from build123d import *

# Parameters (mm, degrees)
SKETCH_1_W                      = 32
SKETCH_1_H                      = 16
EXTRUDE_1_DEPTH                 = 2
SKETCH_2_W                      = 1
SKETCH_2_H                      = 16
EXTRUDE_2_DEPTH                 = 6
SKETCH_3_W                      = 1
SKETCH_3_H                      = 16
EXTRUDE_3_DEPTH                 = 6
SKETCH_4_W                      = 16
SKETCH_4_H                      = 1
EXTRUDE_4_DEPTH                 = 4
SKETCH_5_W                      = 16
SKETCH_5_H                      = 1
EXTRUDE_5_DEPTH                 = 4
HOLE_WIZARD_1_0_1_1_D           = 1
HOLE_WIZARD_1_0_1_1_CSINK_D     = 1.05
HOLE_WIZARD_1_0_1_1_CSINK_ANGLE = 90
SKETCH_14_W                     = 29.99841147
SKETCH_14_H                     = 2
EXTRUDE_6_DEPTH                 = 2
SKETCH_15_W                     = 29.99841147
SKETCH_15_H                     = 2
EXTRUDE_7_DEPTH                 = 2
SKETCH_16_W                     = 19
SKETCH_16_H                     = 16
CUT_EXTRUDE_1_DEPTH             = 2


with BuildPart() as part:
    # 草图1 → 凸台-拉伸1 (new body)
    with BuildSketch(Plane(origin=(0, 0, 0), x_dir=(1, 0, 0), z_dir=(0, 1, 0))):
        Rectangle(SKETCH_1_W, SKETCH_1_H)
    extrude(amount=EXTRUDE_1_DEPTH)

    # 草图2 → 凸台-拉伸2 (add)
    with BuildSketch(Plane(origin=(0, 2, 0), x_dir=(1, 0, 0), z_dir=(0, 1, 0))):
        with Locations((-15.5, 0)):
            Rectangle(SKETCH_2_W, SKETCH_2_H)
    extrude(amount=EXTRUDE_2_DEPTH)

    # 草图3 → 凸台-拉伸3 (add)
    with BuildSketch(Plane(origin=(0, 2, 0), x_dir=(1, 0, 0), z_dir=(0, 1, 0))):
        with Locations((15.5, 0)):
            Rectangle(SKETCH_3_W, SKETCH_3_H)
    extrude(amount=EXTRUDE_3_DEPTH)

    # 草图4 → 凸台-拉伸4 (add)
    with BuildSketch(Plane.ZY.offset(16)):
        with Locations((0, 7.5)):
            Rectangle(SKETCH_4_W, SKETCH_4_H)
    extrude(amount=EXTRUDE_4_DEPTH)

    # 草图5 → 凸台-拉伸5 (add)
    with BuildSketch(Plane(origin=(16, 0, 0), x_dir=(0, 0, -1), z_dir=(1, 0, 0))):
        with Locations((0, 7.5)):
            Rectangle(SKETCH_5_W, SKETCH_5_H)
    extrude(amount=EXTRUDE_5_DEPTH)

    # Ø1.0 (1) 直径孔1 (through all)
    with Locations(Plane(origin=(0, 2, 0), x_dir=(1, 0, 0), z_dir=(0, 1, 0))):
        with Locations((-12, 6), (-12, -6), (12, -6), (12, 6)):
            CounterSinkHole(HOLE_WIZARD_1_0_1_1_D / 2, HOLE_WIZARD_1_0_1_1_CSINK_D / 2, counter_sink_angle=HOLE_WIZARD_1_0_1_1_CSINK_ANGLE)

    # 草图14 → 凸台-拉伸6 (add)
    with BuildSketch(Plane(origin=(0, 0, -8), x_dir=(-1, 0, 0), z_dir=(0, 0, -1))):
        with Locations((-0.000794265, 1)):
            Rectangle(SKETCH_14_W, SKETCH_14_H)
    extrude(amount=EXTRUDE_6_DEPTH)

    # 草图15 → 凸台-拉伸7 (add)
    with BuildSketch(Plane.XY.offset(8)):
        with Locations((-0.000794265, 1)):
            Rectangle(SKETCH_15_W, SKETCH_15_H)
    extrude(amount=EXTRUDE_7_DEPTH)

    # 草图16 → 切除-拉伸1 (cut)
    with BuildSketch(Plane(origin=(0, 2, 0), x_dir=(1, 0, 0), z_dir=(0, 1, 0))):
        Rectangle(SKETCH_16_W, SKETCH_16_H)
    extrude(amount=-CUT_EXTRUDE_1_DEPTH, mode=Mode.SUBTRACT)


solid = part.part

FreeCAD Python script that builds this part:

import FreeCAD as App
import Part
import Sketcher
from FreeCAD import Vector

doc = App.newDocument("Part")
body = doc.addObject("PartDesign::Body", "Body")

sketch1 = body.newObject("Sketcher::SketchObject", "Sketch")
sketch1.AttachmentSupport = (doc.getObject("XZ_Plane"), [""])
sketch1.MapMode = "FlatFace"
sketch1.addGeometry([
    Part.LineSegment(Vector(-16, -8, 0), Vector(-16, 8, 0)),
    Part.LineSegment(Vector(-16, 8, 0), Vector(16, 8, 0)),
    Part.LineSegment(Vector(16, 8, 0), Vector(16, -8, 0)),
    Part.LineSegment(Vector(16, -8, 0), Vector(-16, -8, 0)),
], False)
sketch1.addConstraint([
    Sketcher.Constraint("Coincident", 0, 2, 1, 1),
    Sketcher.Constraint("Coincident", 1, 2, 2, 1),
    Sketcher.Constraint("Coincident", 2, 2, 3, 1),
    Sketcher.Constraint("Coincident", 3, 2, 0, 1),
    Sketcher.Constraint("Vertical", 0),
    Sketcher.Constraint("Horizontal", 1),
    Sketcher.Constraint("Vertical", 2),
    Sketcher.Constraint("Horizontal", 3),
    Sketcher.Constraint("Symmetric", 0, 2, 2, 2, -1, 1),
    Sketcher.Constraint("DistanceX", 1, 1, 1, 2, 32.0),
    Sketcher.Constraint("DistanceY", 0, 1, 0, 2, 16.0),
])
pad1 = body.newObject("PartDesign::Pad", "Pad")
pad1.Profile = sketch1
pad1.Length = 2
pad1.Reversed = True

sketch2 = body.newObject("Sketcher::SketchObject", "Sketch001")
sketch2.AttachmentSupport = (doc.getObject("XZ_Plane"), [""])
sketch2.MapMode = "FlatFace"
sketch2.AttachmentOffset = App.Placement(Vector(0, 0, -2), App.Rotation())
sketch2.addGeometry([
    Part.LineSegment(Vector(-16, -8, 0), Vector(-16, 8, 0)),
    Part.LineSegment(Vector(-16, 8, 0), Vector(-15, 8, 0)),
    Part.LineSegment(Vector(-15, 8, 0), Vector(-15, -8, 0)),
    Part.LineSegment(Vector(-15, -8, 0), Vector(-16, -8, 0)),
], False)
sketch2.addConstraint([
    Sketcher.Constraint("Coincident", 0, 2, 1, 1),
    Sketcher.Constraint("Coincident", 1, 2, 2, 1),
    Sketcher.Constraint("Coincident", 2, 2, 3, 1),
    Sketcher.Constraint("Coincident", 3, 2, 0, 1),
    Sketcher.Constraint("Vertical", 0),
    Sketcher.Constraint("Horizontal", 1),
    Sketcher.Constraint("Vertical", 2),
    Sketcher.Constraint("Horizontal", 3),
    Sketcher.Constraint("DistanceX", 1, 1, 1, 2, 1.0),
    Sketcher.Constraint("DistanceY", 0, 1, 0, 2, 16.0),
    Sketcher.Constraint("DistanceX", 0, 2, -1, 1, 16.0),
    Sketcher.Constraint("DistanceY", -1, 1, 0, 2, 8.0),
])
pad2 = body.newObject("PartDesign::Pad", "Pad001")
pad2.Profile = sketch2
pad2.Length = 6
pad2.Reversed = True

sketch3 = body.newObject("Sketcher::SketchObject", "Sketch002")
sketch3.AttachmentSupport = (doc.getObject("XZ_Plane"), [""])
sketch3.MapMode = "FlatFace"
sketch3.AttachmentOffset = App.Placement(Vector(0, 0, -2), App.Rotation())
sketch3.addGeometry([
    Part.LineSegment(Vector(15, -8, 0), Vector(15, 8, 0)),
    Part.LineSegment(Vector(15, 8, 0), Vector(16, 8, 0)),
    Part.LineSegment(Vector(16, 8, 0), Vector(16, -8, 0)),
    Part.LineSegment(Vector(16, -8, 0), Vector(15, -8, 0)),
], False)
sketch3.addConstraint([
    Sketcher.Constraint("Coincident", 0, 2, 1, 1),
    Sketcher.Constraint("Coincident", 1, 2, 2, 1),
    Sketcher.Constraint("Coincident", 2, 2, 3, 1),
    Sketcher.Constraint("Coincident", 3, 2, 0, 1),
    Sketcher.Constraint("Vertical", 0),
    Sketcher.Constraint("Horizontal", 1),
    Sketcher.Constraint("Vertical", 2),
    Sketcher.Constraint("Horizontal", 3),
    Sketcher.Constraint("DistanceX", 1, 1, 1, 2, 1.0),
    Sketcher.Constraint("DistanceY", 0, 1, 0, 2, 16.0),
    Sketcher.Constraint("DistanceX", -1, 1, 0, 2, 15.0),
    Sketcher.Constraint("DistanceY", -1, 1, 0, 2, 8.0),
])
pad3 = body.newObject("PartDesign::Pad", "Pad002")
pad3.Profile = sketch3
pad3.Length = 6
pad3.Reversed = True

sketch4 = body.newObject("Sketcher::SketchObject", "Sketch003")
sketch4.AttachmentSupport = (doc.getObject("YZ_Plane"), [""])
sketch4.MapMode = "FlatFace"
sketch4.AttachmentOffset = App.Placement(Vector(0, 0, -16), App.Rotation())
sketch4.addGeometry([
    Part.LineSegment(Vector(8, -8, 0), Vector(7, -8, 0)),
    Part.LineSegment(Vector(7, -8, 0), Vector(7, 8, 0)),
    Part.LineSegment(Vector(7, 8, 0), Vector(8, 8, 0)),
    Part.LineSegment(Vector(8, 8, 0), Vector(8, -8, 0)),
], False)
sketch4.addConstraint([
    Sketcher.Constraint("Coincident", 0, 2, 1, 1),
    Sketcher.Constraint("Coincident", 1, 2, 2, 1),
    Sketcher.Constraint("Coincident", 2, 2, 3, 1),
    Sketcher.Constraint("Coincident", 3, 2, 0, 1),
    Sketcher.Constraint("Horizontal", 0),
    Sketcher.Constraint("Vertical", 1),
    Sketcher.Constraint("Horizontal", 2),
    Sketcher.Constraint("Vertical", 3),
    Sketcher.Constraint("DistanceX", 0, 2, 0, 1, 1.0),
    Sketcher.Constraint("DistanceY", 1, 1, 1, 2, 16.0),
    Sketcher.Constraint("DistanceX", -1, 1, 0, 2, 7.0),
    Sketcher.Constraint("DistanceY", 0, 2, -1, 1, 8.0),
])
pad4 = body.newObject("PartDesign::Pad", "Pad003")
pad4.Profile = sketch4
pad4.Length = 4
pad4.Reversed = True

sketch5 = body.newObject("Sketcher::SketchObject", "Sketch004")
sketch5.AttachmentSupport = (doc.getObject("YZ_Plane"), [""])
sketch5.MapMode = "FlatFace"
sketch5.AttachmentOffset = App.Placement(Vector(0, 0, 16), App.Rotation())
sketch5.addGeometry([
    Part.LineSegment(Vector(8, 8, 0), Vector(7, 8, 0)),
    Part.LineSegment(Vector(7, 8, 0), Vector(7, -8, 0)),
    Part.LineSegment(Vector(7, -8, 0), Vector(8, -8, 0)),
    Part.LineSegment(Vector(8, -8, 0), Vector(8, 8, 0)),
], False)
sketch5.addConstraint([
    Sketcher.Constraint("Coincident", 0, 2, 1, 1),
    Sketcher.Constraint("Coincident", 1, 2, 2, 1),
    Sketcher.Constraint("Coincident", 2, 2, 3, 1),
    Sketcher.Constraint("Coincident", 3, 2, 0, 1),
    Sketcher.Constraint("Horizontal", 0),
    Sketcher.Constraint("Vertical", 1),
    Sketcher.Constraint("Horizontal", 2),
    Sketcher.Constraint("Vertical", 3),
    Sketcher.Constraint("DistanceX", 0, 2, 0, 1, 1.0),
    Sketcher.Constraint("DistanceY", 1, 2, 1, 1, 16.0),
    Sketcher.Constraint("DistanceX", -1, 1, 0, 2, 7.0),
    Sketcher.Constraint("DistanceY", -1, 1, 0, 2, 8.0),
])
pad5 = body.newObject("PartDesign::Pad", "Pad004")
pad5.Profile = sketch5
pad5.Length = 4

sketch6 = body.newObject("Sketcher::SketchObject", "Sketch005")
sketch6.AttachmentSupport = (doc.getObject("XZ_Plane"), [""])
sketch6.MapMode = "FlatFace"
sketch6.AttachmentOffset = App.Placement(Vector(0, 0, -2), App.Rotation())
sketch6.addGeometry([
    Part.Circle(Vector(-12, -6, 0), Vector(0, 0, 1), 0.5),
    Part.Circle(Vector(-12, 6, 0), Vector(0, 0, 1), 0.5),
    Part.Circle(Vector(12, 6, 0), Vector(0, 0, 1), 0.5),
    Part.Circle(Vector(12, -6, 0), Vector(0, 0, 1), 0.5),
], False)
sketch6.addConstraint([
    Sketcher.Constraint("Equal", 0, 1),
    Sketcher.Constraint("Equal", 1, 2),
    Sketcher.Constraint("Equal", 2, 3),
    Sketcher.Constraint("Symmetric", 0, 3, 2, 3, -1, 1),
    Sketcher.Constraint("Symmetric", 1, 3, 3, 3, -1, 1),
    Sketcher.Constraint("Symmetric", 1, 3, 2, 3, -2),
    Sketcher.Constraint("Diameter", 0, 1.0),
    Sketcher.Constraint("DistanceX", 0, 3, -1, 1, 12.0),
    Sketcher.Constraint("DistanceY", 0, 3, -1, 1, 6.0),
])
doc.recompute()
hole = body.newObject("PartDesign::Hole", "Hole")
hole.Profile = sketch6
hole.ThreadType = "None"
hole.Diameter = 1
hole.DepthType = "ThroughAll"
hole.HoleCutType = "Countersink"
hole.HoleCutDiameter = 1.05
hole.HoleCutCountersinkAngle = 90
hole.Reversed = True

sketch7 = body.newObject("Sketcher::SketchObject", "Sketch006")
sketch7.AttachmentSupport = (doc.getObject("XY_Plane"), [""])
sketch7.MapMode = "FlatFace"
sketch7.AttachmentOffset = App.Placement(Vector(0, 0, -8), App.Rotation())
sketch7.addGeometry([
    Part.LineSegment(Vector(15, 2, 0), Vector(15, 0, 0)),
    Part.LineSegment(Vector(15, 0, 0), Vector(-14.998411, 0, 0)),
    Part.LineSegment(Vector(-14.998411, 0, 0), Vector(-14.998411, 2, 0)),
    Part.LineSegment(Vector(-14.998411, 2, 0), Vector(15, 2, 0)),
], False)
sketch7.addConstraint([
    Sketcher.Constraint("Coincident", 0, 2, 1, 1),
    Sketcher.Constraint("Coincident", 1, 2, 2, 1),
    Sketcher.Constraint("Coincident", 2, 2, 3, 1),
    Sketcher.Constraint("Coincident", 3, 2, 0, 1),
    Sketcher.Constraint("Vertical", 0),
    Sketcher.Constraint("Horizontal", 1),
    Sketcher.Constraint("Vertical", 2),
    Sketcher.Constraint("Horizontal", 3),
    Sketcher.Constraint("PointOnObject", 0, 2, -1),
    Sketcher.Constraint("DistanceY", 0, 2, 0, 1, 2.0),
    Sketcher.Constraint("DistanceX", -1, 1, 0, 2, 15.0),
    Sketcher.Constraint("DistanceX", 1, 2, 1, 1, 29.998411),
])
pad6 = body.newObject("PartDesign::Pad", "Pad005")
pad6.Profile = sketch7
pad6.Length = 2
pad6.Reversed = True

sketch8 = body.newObject("Sketcher::SketchObject", "Sketch007")
sketch8.AttachmentSupport = (doc.getObject("XY_Plane"), [""])
sketch8.MapMode = "FlatFace"
sketch8.AttachmentOffset = App.Placement(Vector(0, 0, 8), App.Rotation())
sketch8.addGeometry([
    Part.LineSegment(Vector(-15, 2, 0), Vector(-15, 0, 0)),
    Part.LineSegment(Vector(-15, 0, 0), Vector(14.998411, 0, 0)),
    Part.LineSegment(Vector(14.998411, 0, 0), Vector(14.998411, 2, 0)),
    Part.LineSegment(Vector(14.998411, 2, 0), Vector(-15, 2, 0)),
], False)
sketch8.addConstraint([
    Sketcher.Constraint("Coincident", 0, 2, 1, 1),
    Sketcher.Constraint("Coincident", 1, 2, 2, 1),
    Sketcher.Constraint("Coincident", 2, 2, 3, 1),
    Sketcher.Constraint("Coincident", 3, 2, 0, 1),
    Sketcher.Constraint("Vertical", 0),
    Sketcher.Constraint("Horizontal", 1),
    Sketcher.Constraint("Vertical", 2),
    Sketcher.Constraint("Horizontal", 3),
    Sketcher.Constraint("PointOnObject", 0, 2, -1),
    Sketcher.Constraint("DistanceY", 0, 2, 0, 1, 2.0),
    Sketcher.Constraint("DistanceX", 0, 2, -1, 1, 15.0),
    Sketcher.Constraint("DistanceX", 1, 1, 1, 2, 29.998411),
])
pad7 = body.newObject("PartDesign::Pad", "Pad006")
pad7.Profile = sketch8
pad7.Length = 2

sketch9 = body.newObject("Sketcher::SketchObject", "Sketch008")
sketch9.AttachmentSupport = (doc.getObject("XZ_Plane"), [""])
sketch9.MapMode = "FlatFace"
sketch9.AttachmentOffset = App.Placement(Vector(0, 0, -2), App.Rotation())
sketch9.addGeometry([
    Part.LineSegment(Vector(-9.5, -8, 0), Vector(-9.5, 8, 0)),
    Part.LineSegment(Vector(-9.5, 8, 0), Vector(9.5, 8, 0)),
    Part.LineSegment(Vector(9.5, 8, 0), Vector(9.5, -8, 0)),
    Part.LineSegment(Vector(9.5, -8, 0), Vector(-9.5, -8, 0)),
], False)
sketch9.addConstraint([
    Sketcher.Constraint("Coincident", 0, 2, 1, 1),
    Sketcher.Constraint("Coincident", 1, 2, 2, 1),
    Sketcher.Constraint("Coincident", 2, 2, 3, 1),
    Sketcher.Constraint("Coincident", 3, 2, 0, 1),
    Sketcher.Constraint("Vertical", 0),
    Sketcher.Constraint("Horizontal", 1),
    Sketcher.Constraint("Vertical", 2),
    Sketcher.Constraint("Horizontal", 3),
    Sketcher.Constraint("Symmetric", 0, 2, 2, 2, -1, 1),
    Sketcher.Constraint("DistanceX", 1, 1, 1, 2, 19.0),
    Sketcher.Constraint("DistanceY", 0, 1, 0, 2, 16.0),
])
pocket1 = body.newObject("PartDesign::Pocket", "Pocket")
pocket1.Profile = sketch9
pocket1.Length = 2
pocket1.Reversed = True

doc.recompute()
